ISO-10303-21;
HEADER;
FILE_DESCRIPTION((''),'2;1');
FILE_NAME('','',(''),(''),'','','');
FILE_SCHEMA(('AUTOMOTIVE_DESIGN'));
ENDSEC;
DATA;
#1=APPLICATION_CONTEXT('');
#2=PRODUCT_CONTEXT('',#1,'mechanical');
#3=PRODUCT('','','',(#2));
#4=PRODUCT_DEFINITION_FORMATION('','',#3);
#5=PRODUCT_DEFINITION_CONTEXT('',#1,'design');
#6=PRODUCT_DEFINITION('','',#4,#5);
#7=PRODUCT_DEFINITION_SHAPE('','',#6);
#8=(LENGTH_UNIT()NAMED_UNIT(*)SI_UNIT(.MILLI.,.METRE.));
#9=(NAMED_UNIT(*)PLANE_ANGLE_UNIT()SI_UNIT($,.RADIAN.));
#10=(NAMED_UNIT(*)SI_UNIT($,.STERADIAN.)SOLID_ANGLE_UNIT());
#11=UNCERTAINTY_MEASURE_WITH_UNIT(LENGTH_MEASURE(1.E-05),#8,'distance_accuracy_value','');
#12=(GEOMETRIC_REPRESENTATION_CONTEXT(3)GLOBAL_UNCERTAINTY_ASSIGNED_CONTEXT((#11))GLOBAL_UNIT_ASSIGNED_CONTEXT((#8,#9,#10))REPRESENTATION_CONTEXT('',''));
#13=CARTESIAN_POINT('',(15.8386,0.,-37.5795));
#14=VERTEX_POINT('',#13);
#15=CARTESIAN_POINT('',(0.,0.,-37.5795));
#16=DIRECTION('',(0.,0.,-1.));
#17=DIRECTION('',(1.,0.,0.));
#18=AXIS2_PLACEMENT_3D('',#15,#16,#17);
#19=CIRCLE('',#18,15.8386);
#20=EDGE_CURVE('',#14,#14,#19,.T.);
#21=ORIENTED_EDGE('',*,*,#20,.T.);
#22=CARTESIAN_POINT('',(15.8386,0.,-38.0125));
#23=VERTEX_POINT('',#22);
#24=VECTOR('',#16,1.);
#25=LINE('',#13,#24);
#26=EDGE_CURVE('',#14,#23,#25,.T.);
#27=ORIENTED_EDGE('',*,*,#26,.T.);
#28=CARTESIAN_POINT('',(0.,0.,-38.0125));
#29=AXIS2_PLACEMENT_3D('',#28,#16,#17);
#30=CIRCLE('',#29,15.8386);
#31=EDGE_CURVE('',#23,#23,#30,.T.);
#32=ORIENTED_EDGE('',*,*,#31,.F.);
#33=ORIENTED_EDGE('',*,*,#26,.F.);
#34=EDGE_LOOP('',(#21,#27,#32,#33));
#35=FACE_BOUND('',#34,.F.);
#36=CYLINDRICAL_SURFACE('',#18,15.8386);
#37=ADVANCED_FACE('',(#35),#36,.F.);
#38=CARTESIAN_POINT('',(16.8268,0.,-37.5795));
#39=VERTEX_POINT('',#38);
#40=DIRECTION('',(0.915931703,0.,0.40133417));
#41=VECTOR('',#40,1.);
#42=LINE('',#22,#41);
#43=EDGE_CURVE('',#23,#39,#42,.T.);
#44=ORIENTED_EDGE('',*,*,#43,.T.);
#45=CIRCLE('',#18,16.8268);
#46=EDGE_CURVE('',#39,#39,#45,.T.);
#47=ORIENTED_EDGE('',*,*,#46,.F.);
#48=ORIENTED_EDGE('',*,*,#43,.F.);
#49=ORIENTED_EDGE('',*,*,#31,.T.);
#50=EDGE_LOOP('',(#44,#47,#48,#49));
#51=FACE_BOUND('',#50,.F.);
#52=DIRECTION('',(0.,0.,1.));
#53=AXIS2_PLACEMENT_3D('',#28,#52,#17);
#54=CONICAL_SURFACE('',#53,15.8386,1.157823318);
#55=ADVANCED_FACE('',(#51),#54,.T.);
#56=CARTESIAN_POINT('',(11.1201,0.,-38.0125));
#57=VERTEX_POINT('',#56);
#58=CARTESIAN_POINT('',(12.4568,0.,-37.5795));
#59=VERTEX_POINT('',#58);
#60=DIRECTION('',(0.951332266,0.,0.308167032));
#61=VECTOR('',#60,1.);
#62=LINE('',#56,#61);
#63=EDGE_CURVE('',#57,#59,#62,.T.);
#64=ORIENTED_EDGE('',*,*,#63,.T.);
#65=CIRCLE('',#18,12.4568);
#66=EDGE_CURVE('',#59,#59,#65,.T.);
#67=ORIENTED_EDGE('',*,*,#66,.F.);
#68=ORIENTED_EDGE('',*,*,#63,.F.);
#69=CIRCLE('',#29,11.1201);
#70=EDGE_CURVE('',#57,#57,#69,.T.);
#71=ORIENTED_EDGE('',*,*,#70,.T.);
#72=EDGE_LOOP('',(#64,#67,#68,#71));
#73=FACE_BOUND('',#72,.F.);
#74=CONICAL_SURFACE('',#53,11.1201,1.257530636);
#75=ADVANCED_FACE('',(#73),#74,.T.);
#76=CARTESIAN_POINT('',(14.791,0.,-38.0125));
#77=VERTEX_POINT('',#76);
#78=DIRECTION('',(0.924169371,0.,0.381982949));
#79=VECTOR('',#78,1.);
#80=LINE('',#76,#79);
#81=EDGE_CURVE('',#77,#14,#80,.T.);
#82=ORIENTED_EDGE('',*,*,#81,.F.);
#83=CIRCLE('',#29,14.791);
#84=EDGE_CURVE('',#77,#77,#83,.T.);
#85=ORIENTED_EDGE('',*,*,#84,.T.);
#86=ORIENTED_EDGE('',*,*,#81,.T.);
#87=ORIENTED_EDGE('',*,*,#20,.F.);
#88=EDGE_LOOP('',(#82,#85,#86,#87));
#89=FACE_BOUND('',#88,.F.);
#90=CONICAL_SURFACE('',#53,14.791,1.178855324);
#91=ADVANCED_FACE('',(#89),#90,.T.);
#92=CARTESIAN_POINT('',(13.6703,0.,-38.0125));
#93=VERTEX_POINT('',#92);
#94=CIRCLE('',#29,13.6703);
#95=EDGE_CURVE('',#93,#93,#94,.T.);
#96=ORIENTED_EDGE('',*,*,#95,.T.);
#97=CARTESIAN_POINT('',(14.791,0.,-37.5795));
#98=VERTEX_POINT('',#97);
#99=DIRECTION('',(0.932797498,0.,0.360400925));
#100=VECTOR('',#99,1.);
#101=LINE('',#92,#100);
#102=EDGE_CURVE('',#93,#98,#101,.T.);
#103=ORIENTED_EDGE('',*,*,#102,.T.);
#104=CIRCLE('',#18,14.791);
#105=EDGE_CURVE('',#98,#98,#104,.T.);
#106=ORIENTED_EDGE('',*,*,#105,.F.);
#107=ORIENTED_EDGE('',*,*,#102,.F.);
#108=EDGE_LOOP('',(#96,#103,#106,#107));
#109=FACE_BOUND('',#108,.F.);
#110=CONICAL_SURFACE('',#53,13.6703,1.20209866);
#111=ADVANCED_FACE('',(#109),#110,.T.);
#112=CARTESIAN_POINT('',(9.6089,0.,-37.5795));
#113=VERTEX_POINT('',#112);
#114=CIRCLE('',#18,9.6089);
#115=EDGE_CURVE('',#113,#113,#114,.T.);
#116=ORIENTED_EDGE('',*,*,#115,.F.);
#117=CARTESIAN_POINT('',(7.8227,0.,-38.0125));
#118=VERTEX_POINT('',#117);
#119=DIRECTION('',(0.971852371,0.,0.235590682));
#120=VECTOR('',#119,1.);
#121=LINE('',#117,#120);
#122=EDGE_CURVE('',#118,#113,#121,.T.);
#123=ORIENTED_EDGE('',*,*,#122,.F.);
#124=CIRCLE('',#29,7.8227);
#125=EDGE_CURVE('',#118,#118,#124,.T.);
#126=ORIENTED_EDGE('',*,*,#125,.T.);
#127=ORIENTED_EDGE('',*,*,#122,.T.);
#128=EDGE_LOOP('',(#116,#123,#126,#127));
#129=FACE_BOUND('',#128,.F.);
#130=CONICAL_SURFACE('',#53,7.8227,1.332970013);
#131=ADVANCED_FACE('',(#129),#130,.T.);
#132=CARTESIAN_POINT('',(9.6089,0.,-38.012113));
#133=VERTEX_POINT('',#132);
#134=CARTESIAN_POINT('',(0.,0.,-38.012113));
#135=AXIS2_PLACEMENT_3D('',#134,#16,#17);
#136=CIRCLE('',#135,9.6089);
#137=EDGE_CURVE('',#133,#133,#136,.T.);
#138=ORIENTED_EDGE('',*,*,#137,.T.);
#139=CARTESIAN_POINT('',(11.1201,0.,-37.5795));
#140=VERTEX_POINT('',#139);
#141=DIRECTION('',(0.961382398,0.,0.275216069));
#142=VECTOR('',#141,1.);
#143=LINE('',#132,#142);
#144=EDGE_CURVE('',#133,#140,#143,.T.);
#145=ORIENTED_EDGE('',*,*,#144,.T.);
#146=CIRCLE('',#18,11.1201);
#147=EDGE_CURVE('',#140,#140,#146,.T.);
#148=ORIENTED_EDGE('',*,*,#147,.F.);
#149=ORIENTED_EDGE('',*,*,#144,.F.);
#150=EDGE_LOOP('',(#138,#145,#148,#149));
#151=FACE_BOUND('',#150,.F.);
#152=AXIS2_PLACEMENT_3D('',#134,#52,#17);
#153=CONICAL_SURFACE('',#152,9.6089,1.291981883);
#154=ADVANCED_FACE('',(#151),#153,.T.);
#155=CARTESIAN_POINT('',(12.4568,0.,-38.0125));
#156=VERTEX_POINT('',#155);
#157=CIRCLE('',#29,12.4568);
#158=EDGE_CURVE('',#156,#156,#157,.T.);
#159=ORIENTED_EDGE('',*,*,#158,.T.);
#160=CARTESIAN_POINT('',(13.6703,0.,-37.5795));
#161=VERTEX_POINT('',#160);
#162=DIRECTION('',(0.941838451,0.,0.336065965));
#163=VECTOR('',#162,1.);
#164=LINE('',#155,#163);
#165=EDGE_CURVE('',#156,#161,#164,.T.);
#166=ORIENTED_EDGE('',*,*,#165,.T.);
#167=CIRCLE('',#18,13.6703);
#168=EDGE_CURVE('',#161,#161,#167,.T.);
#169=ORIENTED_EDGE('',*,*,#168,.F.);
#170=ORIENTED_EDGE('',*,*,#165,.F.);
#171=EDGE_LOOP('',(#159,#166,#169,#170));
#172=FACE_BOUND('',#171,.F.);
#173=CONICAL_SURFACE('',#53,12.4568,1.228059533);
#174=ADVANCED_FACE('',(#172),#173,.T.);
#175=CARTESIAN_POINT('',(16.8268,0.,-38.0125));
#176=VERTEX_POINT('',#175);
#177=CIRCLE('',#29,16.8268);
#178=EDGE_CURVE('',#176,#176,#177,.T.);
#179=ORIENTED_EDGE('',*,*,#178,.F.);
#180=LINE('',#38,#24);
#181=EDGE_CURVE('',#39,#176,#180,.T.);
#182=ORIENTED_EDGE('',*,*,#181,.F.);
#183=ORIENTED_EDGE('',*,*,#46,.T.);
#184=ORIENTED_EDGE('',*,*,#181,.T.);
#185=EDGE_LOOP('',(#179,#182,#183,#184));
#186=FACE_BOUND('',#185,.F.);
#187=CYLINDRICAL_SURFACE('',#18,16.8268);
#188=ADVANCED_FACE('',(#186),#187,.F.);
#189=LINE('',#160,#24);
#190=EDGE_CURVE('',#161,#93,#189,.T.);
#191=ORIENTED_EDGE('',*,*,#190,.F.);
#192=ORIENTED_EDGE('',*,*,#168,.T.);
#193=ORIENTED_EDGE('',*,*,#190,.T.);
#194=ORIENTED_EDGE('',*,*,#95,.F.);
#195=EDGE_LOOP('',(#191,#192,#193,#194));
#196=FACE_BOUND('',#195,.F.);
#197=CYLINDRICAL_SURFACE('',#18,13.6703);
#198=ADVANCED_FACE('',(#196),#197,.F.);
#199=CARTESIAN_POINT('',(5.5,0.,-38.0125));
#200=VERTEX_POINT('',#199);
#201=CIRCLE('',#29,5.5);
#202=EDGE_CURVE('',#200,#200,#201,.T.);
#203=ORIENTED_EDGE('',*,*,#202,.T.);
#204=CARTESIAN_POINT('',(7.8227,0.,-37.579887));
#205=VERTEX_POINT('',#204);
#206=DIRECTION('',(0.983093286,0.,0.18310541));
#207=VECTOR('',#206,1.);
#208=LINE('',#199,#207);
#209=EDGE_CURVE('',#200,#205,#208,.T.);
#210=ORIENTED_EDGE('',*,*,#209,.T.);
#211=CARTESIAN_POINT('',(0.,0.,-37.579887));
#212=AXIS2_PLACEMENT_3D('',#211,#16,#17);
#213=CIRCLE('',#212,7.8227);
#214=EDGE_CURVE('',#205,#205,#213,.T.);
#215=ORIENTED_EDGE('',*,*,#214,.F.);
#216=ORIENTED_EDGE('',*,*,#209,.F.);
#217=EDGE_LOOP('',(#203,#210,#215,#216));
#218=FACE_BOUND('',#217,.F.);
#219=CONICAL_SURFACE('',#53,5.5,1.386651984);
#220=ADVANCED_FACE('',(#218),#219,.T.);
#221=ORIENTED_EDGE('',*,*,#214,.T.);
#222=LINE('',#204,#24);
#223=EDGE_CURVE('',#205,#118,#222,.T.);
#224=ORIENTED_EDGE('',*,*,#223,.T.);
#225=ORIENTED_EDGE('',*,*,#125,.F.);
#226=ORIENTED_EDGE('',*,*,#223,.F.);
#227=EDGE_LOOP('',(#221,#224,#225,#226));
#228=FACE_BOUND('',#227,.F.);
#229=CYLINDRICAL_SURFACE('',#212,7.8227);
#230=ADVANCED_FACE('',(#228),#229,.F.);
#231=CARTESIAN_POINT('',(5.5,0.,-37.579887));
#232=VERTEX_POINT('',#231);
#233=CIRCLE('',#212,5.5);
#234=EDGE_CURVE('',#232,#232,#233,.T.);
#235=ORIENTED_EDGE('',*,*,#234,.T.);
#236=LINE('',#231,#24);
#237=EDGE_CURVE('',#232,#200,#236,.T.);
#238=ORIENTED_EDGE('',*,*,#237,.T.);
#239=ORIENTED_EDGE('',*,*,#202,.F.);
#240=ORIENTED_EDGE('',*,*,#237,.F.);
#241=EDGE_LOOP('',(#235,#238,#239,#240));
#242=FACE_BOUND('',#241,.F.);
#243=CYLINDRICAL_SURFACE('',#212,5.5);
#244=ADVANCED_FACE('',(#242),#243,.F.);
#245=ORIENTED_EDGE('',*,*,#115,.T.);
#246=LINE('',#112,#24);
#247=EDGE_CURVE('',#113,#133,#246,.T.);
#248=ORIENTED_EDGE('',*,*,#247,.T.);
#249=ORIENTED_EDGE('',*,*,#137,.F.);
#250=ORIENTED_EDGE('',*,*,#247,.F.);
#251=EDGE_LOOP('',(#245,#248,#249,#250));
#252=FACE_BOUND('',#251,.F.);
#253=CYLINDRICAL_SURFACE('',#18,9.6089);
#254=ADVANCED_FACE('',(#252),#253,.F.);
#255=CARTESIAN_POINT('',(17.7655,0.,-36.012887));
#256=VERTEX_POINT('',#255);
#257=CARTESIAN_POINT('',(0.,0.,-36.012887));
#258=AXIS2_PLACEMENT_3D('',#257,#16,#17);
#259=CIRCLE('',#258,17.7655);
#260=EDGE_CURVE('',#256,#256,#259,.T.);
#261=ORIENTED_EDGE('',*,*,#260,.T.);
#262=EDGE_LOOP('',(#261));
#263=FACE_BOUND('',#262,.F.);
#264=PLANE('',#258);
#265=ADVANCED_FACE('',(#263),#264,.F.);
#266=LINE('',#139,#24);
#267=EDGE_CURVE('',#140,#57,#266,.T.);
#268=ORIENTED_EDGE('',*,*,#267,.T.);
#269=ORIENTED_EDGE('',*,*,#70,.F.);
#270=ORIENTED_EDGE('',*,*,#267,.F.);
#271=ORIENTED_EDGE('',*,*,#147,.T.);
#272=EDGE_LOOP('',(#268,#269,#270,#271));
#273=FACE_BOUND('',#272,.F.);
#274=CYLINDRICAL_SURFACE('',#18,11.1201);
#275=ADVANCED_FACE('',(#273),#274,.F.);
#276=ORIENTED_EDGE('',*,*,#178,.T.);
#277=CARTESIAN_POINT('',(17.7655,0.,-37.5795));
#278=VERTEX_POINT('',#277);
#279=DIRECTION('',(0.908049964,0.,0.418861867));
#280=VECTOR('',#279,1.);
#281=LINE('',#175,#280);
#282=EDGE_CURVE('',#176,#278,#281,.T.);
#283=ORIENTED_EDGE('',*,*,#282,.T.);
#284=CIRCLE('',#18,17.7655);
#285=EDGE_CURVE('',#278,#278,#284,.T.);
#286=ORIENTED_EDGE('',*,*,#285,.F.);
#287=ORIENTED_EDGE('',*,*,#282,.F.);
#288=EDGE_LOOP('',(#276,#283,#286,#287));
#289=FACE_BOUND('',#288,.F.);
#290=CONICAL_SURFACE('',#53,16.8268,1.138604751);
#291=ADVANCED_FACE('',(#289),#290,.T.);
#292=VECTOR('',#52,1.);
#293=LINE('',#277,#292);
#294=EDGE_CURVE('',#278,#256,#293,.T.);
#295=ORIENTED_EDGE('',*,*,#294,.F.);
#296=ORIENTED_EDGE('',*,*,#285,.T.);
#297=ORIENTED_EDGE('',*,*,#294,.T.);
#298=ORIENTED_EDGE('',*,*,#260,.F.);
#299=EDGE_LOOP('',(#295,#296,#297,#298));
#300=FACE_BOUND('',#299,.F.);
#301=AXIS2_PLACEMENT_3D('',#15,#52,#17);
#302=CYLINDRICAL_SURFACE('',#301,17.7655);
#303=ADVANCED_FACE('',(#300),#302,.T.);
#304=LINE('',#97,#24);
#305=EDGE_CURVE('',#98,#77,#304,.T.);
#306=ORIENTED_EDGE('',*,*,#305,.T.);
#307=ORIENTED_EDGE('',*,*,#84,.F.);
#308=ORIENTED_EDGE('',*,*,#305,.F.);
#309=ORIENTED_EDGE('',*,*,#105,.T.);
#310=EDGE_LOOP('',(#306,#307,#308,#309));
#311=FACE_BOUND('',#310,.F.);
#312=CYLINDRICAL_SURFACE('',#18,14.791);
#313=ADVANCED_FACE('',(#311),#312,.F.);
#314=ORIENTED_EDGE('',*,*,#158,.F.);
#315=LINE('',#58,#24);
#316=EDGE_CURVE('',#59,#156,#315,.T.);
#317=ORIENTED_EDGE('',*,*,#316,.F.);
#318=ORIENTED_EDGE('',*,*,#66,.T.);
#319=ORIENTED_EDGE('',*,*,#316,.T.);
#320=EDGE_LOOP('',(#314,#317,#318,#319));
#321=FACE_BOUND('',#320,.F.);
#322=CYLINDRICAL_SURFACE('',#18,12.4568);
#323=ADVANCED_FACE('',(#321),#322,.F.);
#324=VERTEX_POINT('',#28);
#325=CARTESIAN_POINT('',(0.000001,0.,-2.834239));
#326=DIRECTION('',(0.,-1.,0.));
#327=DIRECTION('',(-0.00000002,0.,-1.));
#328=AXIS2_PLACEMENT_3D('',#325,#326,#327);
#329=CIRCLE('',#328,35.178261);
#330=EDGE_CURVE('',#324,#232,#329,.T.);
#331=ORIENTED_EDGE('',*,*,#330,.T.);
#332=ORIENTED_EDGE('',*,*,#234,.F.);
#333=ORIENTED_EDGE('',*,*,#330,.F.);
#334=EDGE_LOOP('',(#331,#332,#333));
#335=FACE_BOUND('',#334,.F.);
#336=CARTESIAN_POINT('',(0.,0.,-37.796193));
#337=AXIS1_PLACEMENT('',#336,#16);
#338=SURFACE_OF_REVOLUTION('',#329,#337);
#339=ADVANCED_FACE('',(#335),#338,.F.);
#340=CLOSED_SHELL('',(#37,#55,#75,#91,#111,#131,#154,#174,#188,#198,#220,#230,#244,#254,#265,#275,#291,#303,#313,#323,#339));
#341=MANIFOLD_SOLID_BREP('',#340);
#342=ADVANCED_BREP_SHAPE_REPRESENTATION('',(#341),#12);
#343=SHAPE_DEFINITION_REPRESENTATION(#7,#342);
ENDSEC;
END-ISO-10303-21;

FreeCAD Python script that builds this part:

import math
import FreeCAD as App
import Part
import Sketcher

V = App.Vector

doc = App.newDocument("Part")
params = doc.addObject("Spreadsheet::Sheet", "Params")
for row, (alias, value) in enumerate([
    ("revolution_angle", "360 deg"),
], start=1):
    params.set(f"A{row}", alias)
    params.set(f"B{row}", "=" + value)
    params.setAlias(f"B{row}", alias)

body = doc.addObject("PartDesign::Body", "Body")

sketch1 = body.newObject("Sketcher::SketchObject", "Sketch")
sketch1.AttachmentSupport = (doc.getObject("XZ_Plane"), [""])
sketch1.MapMode = "FlatFace"
sketch1.addGeometry(Part.ArcOfCircle(Part.Circle(V(0, -2.83, 0), V(0, 0, 1), 35.18), math.radians(-90), math.radians(-81.01)), False)
sketch1.addGeometry(Part.LineSegment(V(5.5, -37.58, 0), V(5.5, -38.01, 0)), False)
sketch1.addGeometry(Part.LineSegment(V(5.5, -38.01, 0), V(7.82, -37.58, 0)), False)
sketch1.addGeometry(Part.LineSegment(V(7.82, -37.58, 0), V(7.82, -38.01, 0)), False)
sketch1.addGeometry(Part.LineSegment(V(7.82, -38.01, 0), V(9.61, -37.58, 0)), False)
sketch1.addGeometry(Part.LineSegment(V(9.61, -37.58, 0), V(9.61, -38.01, 0)), False)
sketch1.addGeometry(Part.LineSegment(V(9.61, -38.01, 0), V(11.12, -37.58, 0)), False)
sketch1.addGeometry(Part.LineSegment(V(11.12, -37.58, 0), V(11.12, -38.01, 0)), False)
sketch1.addGeometry(Part.LineSegment(V(11.12, -38.01, 0), V(12.46, -37.58, 0)), False)
sketch1.addGeometry(Part.LineSegment(V(12.46, -37.58, 0), V(12.46, -38.01, 0)), False)
sketch1.addGeometry(Part.LineSegment(V(12.46, -38.01, 0), V(13.67, -37.58, 0)), False)
sketch1.addGeometry(Part.LineSegment(V(13.67, -37.58, 0), V(13.67, -38.01, 0)), False)
sketch1.addGeometry(Part.LineSegment(V(13.67, -38.01, 0), V(14.79, -37.58, 0)), False)
sketch1.addGeometry(Part.LineSegment(V(14.79, -37.58, 0), V(14.79, -38.01, 0)), False)
sketch1.addGeometry(Part.LineSegment(V(14.79, -38.01, 0), V(15.84, -37.58, 0)), False)
sketch1.addGeometry(Part.LineSegment(V(15.84, -37.58, 0), V(15.84, -38.01, 0)), False)
sketch1.addGeometry(Part.LineSegment(V(15.84, -38.01, 0), V(16.83, -37.58, 0)), False)
sketch1.addGeometry(Part.LineSegment(V(16.83, -37.58, 0), V(16.83, -38.01, 0)), False)
sketch1.addGeometry(Part.LineSegment(V(16.83, -38.01, 0), V(17.77, -37.58, 0)), False)
sketch1.addGeometry(Part.LineSegment(V(17.77, -37.58, 0), V(17.77, -36.01, 0)), False)
sketch1.addGeometry(Part.LineSegment(V(17.77, -36.01, 0), V(0, -36.01, 0)), False)
sketch1.addGeometry(Part.LineSegment(V(0, -36.01, 0), V(0, -38.01, 0)), False)
sketch1.addConstraint(Sketcher.Constraint("Coincident", 0, 2, 1, 1))
sketch1.addConstraint(Sketcher.Constraint("Coincident", 1, 2, 2, 1))
sketch1.addConstraint(Sketcher.Constraint("Coincident", 2, 2, 3, 1))
sketch1.addConstraint(Sketcher.Constraint("Coincident", 3, 2, 4, 1))
sketch1.addConstraint(Sketcher.Constraint("Coincident", 4, 2, 5, 1))
sketch1.addConstraint(Sketcher.Constraint("Coincident", 5, 2, 6, 1))
sketch1.addConstraint(Sketcher.Constraint("Coincident", 6, 2, 7, 1))
sketch1.addConstraint(Sketcher.Constraint("Coincident", 7, 2, 8, 1))
sketch1.addConstraint(Sketcher.Constraint("Coincident", 8, 2, 9, 1))
sketch1.addConstraint(Sketcher.Constraint("Coincident", 9, 2, 10, 1))
sketch1.addConstraint(Sketcher.Constraint("Coincident", 10, 2, 11, 1))
sketch1.addConstraint(Sketcher.Constraint("Coincident", 11, 2, 12, 1))
sketch1.addConstraint(Sketcher.Constraint("Coincident", 12, 2, 13, 1))
sketch1.addConstraint(Sketcher.Constraint("Coincident", 13, 2, 14, 1))
sketch1.addConstraint(Sketcher.Constraint("Coincident", 14, 2, 15, 1))
sketch1.addConstraint(Sketcher.Constraint("Coincident", 15, 2, 16, 1))
sketch1.addConstraint(Sketcher.Constraint("Coincident", 16, 2, 17, 1))
sketch1.addConstraint(Sketcher.Constraint("Coincident", 17, 2, 18, 1))
sketch1.addConstraint(Sketcher.Constraint("Coincident", 18, 2, 19, 1))
sketch1.addConstraint(Sketcher.Constraint("Coincident", 19, 2, 20, 1))
sketch1.addConstraint(Sketcher.Constraint("Coincident", 20, 2, 21, 1))
sketch1.addConstraint(Sketcher.Constraint("Coincident", 21, 2, 0, 1))
sketch1.addConstraint(Sketcher.Constraint("Vertical", 1))
sketch1.addConstraint(Sketcher.Constraint("Vertical", 3))
sketch1.addConstraint(Sketcher.Constraint("Vertical", 5))
sketch1.addConstraint(Sketcher.Constraint("Vertical", 7))
sketch1.addConstraint(Sketcher.Constraint("Vertical", 9))
sketch1.addConstraint(Sketcher.Constraint("Vertical", 11))
sketch1.addConstraint(Sketcher.Constraint("Vertical", 13))
sketch1.addConstraint(Sketcher.Constraint("Vertical", 15))
sketch1.addConstraint(Sketcher.Constraint("Vertical", 17))
sketch1.addConstraint(Sketcher.Constraint("Vertical", 19))
sketch1.addConstraint(Sketcher.Constraint("Horizontal", 20))
sketch1.addConstraint(Sketcher.Constraint("Vertical", 21))
sketch1.addConstraint(Sketcher.Constraint("PointOnObject", 0, 3, -2))
sketch1.addConstraint(Sketcher.Constraint("PointOnObject", 20, 2, -2))
sketch1.addConstraint(Sketcher.Constraint("Horizontal", 0, 2, 2, 2))
sketch1.addConstraint(Sketcher.Constraint("Horizontal", 1, 2, 3, 2))
sketch1.addConstraint(Sketcher.Constraint("Horizontal", 4, 2, 6, 2))
sketch1.addConstraint(Sketcher.Constraint("Horizontal", 3, 2, 7, 2))
sketch1.addConstraint(Sketcher.Constraint("Horizontal", 6, 2, 8, 2))
sketch1.addConstraint(Sketcher.Constraint("Horizontal", 7, 2, 9, 2))
sketch1.addConstraint(Sketcher.Constraint("Horizontal", 8, 2, 10, 2))
sketch1.addConstraint(Sketcher.Constraint("Horizontal", 9, 2, 11, 2))
sketch1.addConstraint(Sketcher.Constraint("Horizontal", 10, 2, 12, 2))
sketch1.addConstraint(Sketcher.Constraint("Horizontal", 11, 2, 13, 2))
sketch1.addConstraint(Sketcher.Constraint("Horizontal", 12, 2, 14, 2))
sketch1.addConstraint(Sketcher.Constraint("Horizontal", 13, 2, 15, 2))
sketch1.addConstraint(Sketcher.Constraint("Horizontal", 14, 2, 16, 2))
sketch1.addConstraint(Sketcher.Constraint("Horizontal", 15, 2, 17, 2))
sketch1.addConstraint(Sketcher.Constraint("Horizontal", 16, 2, 18, 2))
sketch1.addConstraint(Sketcher.Constraint("Horizontal", 17, 2, 21, 2))
sketch1.addConstraint(Sketcher.Constraint("Equal", 3, 5))
sketch1.addConstraint(Sketcher.Constraint("DistanceX", -1, 1, 0, 2, 5.5))
sketch1.addConstraint(Sketcher.Constraint("DistanceY", 7, 2, 7, 1, 0.433))
sketch1.addConstraint(Sketcher.Constraint("Radius", 0, 35.178261))
sketch1.addConstraint(Sketcher.Constraint("DistanceX", 20, 2, 20, 1, 17.7655))
sketch1.addConstraint(Sketcher.Constraint("DistanceX", -1, 1, 12, 2, 14.791))
sketch1.addConstraint(Sketcher.Constraint("DistanceY", 0, 2, 20, 2, 1.567))
sketch1.addConstraint(Sketcher.Constraint("Distance", 16, 1.078901))
sketch1.addConstraint(Sketcher.Constraint("DistanceY", 1, 2, -1, 1, 38.0125))
sketch1.addConstraint(Sketcher.Constraint("DistanceX", -1, 1, 2, 2, 7.8227))
sketch1.addConstraint(Sketcher.Constraint("DistanceX", -1, 1, 4, 2, 9.6089))
sketch1.addConstraint(Sketcher.Constraint("DistanceX", -1, 1, 6, 2, 11.1201))
sketch1.addConstraint(Sketcher.Constraint("DistanceX", -1, 1, 8, 2, 12.4568))
sketch1.addConstraint(Sketcher.Constraint("DistanceX", -1, 1, 10, 2, 13.6703))
sketch1.addConstraint(Sketcher.Constraint("DistanceX", -1, 1, 14, 2, 15.8386))
revolution = body.newObject("PartDesign::Revolution", "Revolution")
revolution.Profile = sketch1
revolution.ReferenceAxis = (sketch1, ["V_Axis"])
revolution.setExpression("Angle", "Params.revolution_angle")

doc.recompute()
